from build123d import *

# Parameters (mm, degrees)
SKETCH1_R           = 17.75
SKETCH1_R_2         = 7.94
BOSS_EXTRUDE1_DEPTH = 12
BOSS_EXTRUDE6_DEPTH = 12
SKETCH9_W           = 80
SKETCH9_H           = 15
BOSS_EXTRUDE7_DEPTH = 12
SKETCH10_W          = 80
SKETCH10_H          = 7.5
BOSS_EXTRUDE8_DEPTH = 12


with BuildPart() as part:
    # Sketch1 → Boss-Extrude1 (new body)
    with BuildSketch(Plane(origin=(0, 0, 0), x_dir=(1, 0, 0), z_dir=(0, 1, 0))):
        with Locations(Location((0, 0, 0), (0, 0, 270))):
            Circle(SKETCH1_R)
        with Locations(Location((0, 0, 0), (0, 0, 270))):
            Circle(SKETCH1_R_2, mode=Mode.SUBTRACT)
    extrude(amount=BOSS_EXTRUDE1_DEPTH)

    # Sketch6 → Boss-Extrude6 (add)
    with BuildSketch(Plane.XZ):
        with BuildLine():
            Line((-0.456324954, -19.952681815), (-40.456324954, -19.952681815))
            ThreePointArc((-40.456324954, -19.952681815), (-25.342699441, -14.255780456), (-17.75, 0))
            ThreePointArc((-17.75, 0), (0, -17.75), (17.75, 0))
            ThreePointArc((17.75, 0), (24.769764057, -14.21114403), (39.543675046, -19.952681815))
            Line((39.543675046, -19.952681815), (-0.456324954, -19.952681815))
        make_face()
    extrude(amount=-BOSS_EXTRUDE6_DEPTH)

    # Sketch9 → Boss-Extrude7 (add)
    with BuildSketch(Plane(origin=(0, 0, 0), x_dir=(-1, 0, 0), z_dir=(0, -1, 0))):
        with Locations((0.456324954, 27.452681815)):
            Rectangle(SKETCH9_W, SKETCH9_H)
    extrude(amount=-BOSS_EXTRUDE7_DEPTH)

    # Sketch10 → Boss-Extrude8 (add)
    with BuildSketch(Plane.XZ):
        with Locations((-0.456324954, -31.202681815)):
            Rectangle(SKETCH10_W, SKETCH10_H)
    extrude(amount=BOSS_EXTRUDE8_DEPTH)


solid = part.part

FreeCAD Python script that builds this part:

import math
import FreeCAD as App
import Part
import Sketcher
from FreeCAD import Vector
Q = App.Units.Quantity


def add_polygon(sketch, points):
    """Adds a closed chain of lines whose ends are joined by coincident constraints."""
    first, n = sketch.GeometryCount, len(points)
    for a, b in zip(points, points[1:] + points[:1]):
        sketch.addGeometry(Part.LineSegment(App.Vector(*a, 0), App.Vector(*b, 0)), False)
    for i in range(n):
        sketch.addConstraint(Sketcher.Constraint("Coincident", first + i, 2, first + (i + 1) % n, 1))

doc = App.newDocument("Part")
body = doc.addObject("PartDesign::Body", "Body")

# Sketch on XZ plane
sketch1 = body.newObject("Sketcher::SketchObject", "Sketch")
sketch1.AttachmentSupport = (doc.getObject("XZ_Plane"), [""])
sketch1.MapMode = "FlatFace"
sketch1.addGeometry([
    Part.Circle(Vector(0, 0, 0), Vector(0, 0, 1), 18),
    Part.Circle(Vector(0, 0, 0), Vector(0, 0, 1), 8),
], False)
sketch1.addConstraint([
    Sketcher.Constraint("Coincident", 0, 3, -1, 1),
    Sketcher.Constraint("Coincident", 1, 3, -1, 1),
    Sketcher.Constraint("Diameter", 0, Q("35.5 mm")),
    Sketcher.Constraint("Diameter", 1, Q("15.88 mm")),
])
pad1 = body.newObject("PartDesign::Pad", "Pad")
pad1.Profile = sketch1
pad1.Length = 12
pad1.Reversed = True

# Sketch on XZ plane
sketch2 = body.newObject("Sketcher::SketchObject", "Sketch001")
sketch2.AttachmentSupport = (doc.getObject("XZ_Plane"), [""])
sketch2.MapMode = "FlatFace"
sketch2.addGeometry([
    Part.ArcOfCircle(Part.Circle(Vector(-40, 3, 0), Vector(0, 0, 1), 23), math.radians(-90), math.radians(-7)),
    Part.LineSegment(Vector(-40, -20, 0), Vector(40, -20, 0)),
    Part.ArcOfCircle(Part.Circle(Vector(40, 2, 0), Vector(0, 0, 1), 22), math.radians(-175), math.radians(-90)),
    Part.ArcOfCircle(Part.Circle(Vector(0, 0, 0), Vector(0, 0, 1), 18), math.radians(180), math.radians(360)),
], False)
sketch2.addConstraint([
    Sketcher.Constraint("Tangent", 0, 1, 1, 1),
    Sketcher.Constraint("Tangent", 1, 2, 2, 2),
    Sketcher.Constraint("Coincident", 2, 1, 3, 2),
    Sketcher.Constraint("Coincident", 3, 1, 0, 2),
    Sketcher.Constraint("Horizontal", 1),
    Sketcher.Constraint("Coincident", 3, 3, -1, 1),
    Sketcher.Constraint("PointOnObject", 2, 1, -1),
    Sketcher.Constraint("PointOnObject", 3, 1, -1),
    Sketcher.Constraint("DistanceX", 1, 1, 1, 2, Q("80 mm")),
    Sketcher.Constraint("Radius", 3, Q("17.75 mm")),
    Sketcher.Constraint("Radius", 0, Q("22.896338 mm")),
    Sketcher.Constraint("Radius", 2, Q("21.878607 mm")),
])
pad2 = body.newObject("PartDesign::Pad", "Pad001")
pad2.Profile = sketch2
pad2.Length = 12
pad2.Reversed = True

# Sketch on XZ plane
sketch3 = body.newObject("Sketcher::SketchObject", "Sketch002")
sketch3.AttachmentSupport = (doc.getObject("XZ_Plane"), [""])
sketch3.MapMode = "FlatFace"
add_polygon(sketch3, [(40, -35), (40, -20), (-40, -20), (-40, -35)])  # lines 0-3
sketch3.addConstraint([
    Sketcher.Constraint("Vertical", 0),
    Sketcher.Constraint("Horizontal", 1),
    Sketcher.Constraint("Vertical", 2),
    Sketcher.Constraint("Horizontal", 3),
    Sketcher.Constraint("DistanceX", 1, 2, 1, 1, Q("80 mm")),
    Sketcher.Constraint("DistanceY", 0, 1, 0, 2, Q("15 mm")),
    Sketcher.Constraint("DistanceY", 0, 2, -1, 1, Q("19.952682 mm")),
    Sketcher.Constraint("DistanceX", -1, 1, 0, 2, Q("39.543675 mm")),
])
pad3 = body.newObject("PartDesign::Pad", "Pad002")
pad3.Profile = sketch3
pad3.Length = 12
pad3.Reversed = True

# Sketch on XZ plane
sketch4 = body.newObject("Sketcher::SketchObject", "Sketch003")
sketch4.AttachmentSupport = (doc.getObject("XZ_Plane"), [""])
sketch4.MapMode = "FlatFace"
add_polygon(sketch4, [(-40, -27), (-40, -35), (40, -35), (40, -27)])  # lines 0-3
sketch4.addConstraint([
    Sketcher.Constraint("Vertical", 0),
    Sketcher.Constraint("Horizontal", 1),
    Sketcher.Constraint("Vertical", 2),
    Sketcher.Constraint("Horizontal", 3),
    Sketcher.Constraint("DistanceX", 1, 1, 1, 2, Q("80 mm")),
    Sketcher.Constraint("DistanceY", 0, 2, 0, 1, Q("7.5 mm")),
    Sketcher.Constraint("DistanceY", 0, 2, -1, 1, Q("34.952682 mm")),
    Sketcher.Constraint("DistanceX", 0, 2, -1, 1, Q("40.456325 mm")),
])
pad4 = body.newObject("PartDesign::Pad", "Pad003")
pad4.Profile = sketch4
pad4.Length = 12

doc.recompute()
